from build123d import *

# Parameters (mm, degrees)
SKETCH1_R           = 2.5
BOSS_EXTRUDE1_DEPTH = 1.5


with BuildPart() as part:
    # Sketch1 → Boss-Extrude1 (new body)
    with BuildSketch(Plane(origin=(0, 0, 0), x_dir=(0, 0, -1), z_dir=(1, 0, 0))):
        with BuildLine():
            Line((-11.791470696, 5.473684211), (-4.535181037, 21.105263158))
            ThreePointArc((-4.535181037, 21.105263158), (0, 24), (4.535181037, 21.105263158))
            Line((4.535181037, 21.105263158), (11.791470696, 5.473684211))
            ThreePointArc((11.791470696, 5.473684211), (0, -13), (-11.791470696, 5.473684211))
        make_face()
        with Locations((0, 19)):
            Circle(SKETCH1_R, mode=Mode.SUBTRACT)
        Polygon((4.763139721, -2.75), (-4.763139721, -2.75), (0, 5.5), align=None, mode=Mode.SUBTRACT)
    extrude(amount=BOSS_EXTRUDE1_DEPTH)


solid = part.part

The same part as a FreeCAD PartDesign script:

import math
import FreeCAD as App
import Part
import Sketcher
from FreeCAD import Vector
Q = App.Units.Quantity

doc = App.newDocument("Part")
body = doc.addObject("PartDesign::Body", "Body")

# Sketch on YZ plane
sketch1 = body.newObject("Sketcher::SketchObject", "Sketch")
sketch1.AttachmentSupport = (doc.getObject("YZ_Plane"), [""])
sketch1.MapMode = "FlatFace"
sketch1.addGeometry(Part.LineSegment(Vector(21.1, 4.5, 0), Vector(5.5, 11.8, 0)), False)
sketch1.addGeometry(Part.ArcOfCircle(Part.Circle(Vector(0, 0, 0), Vector(0, 0, 1), 13), math.radians(65), math.radians(295)), False)
sketch1.addGeometry(Part.LineSegment(Vector(5.5, -11.8, 0), Vector(21.1, -4.5, 0)), False)
sketch1.addGeometry(Part.ArcOfCircle(Part.Circle(Vector(19, 0, 0), Vector(0, 0, 1), 5), math.radians(-65), math.radians(65)), False)
sketch1.addGeometry(Part.LineSegment(Vector(-2.8, -4.8, 0), Vector(-2.8, 4.8, 0)), False)
sketch1.addGeometry(Part.LineSegment(Vector(-2.8, 4.8, 0), Vector(5.5, 0, 0)), False)
sketch1.addGeometry(Part.LineSegment(Vector(5.5, 0, 0), Vector(-2.8, -4.8, 0)), False)
sketch1.addGeometry(Part.Circle(Vector(19, 0, 0), Vector(0, 0, 1), 2.5), False)
sketch1.addConstraint(Sketcher.Constraint("Tangent", 0, 2, 1, 1))
sketch1.addConstraint(Sketcher.Constraint("Tangent", 1, 2, 2, 1))
sketch1.addConstraint(Sketcher.Constraint("Tangent", 2, 2, 3, 1))
sketch1.addConstraint(Sketcher.Constraint("Tangent", 3, 2, 0, 1))
sketch1.addConstraint(Sketcher.Constraint("Coincident", 4, 2, 5, 1))
sketch1.addConstraint(Sketcher.Constraint("Coincident", 5, 2, 6, 1))
sketch1.addConstraint(Sketcher.Constraint("Coincident", 6, 2, 4, 1))
sketch1.addConstraint(Sketcher.Constraint("Vertical", 4))
sketch1.addConstraint(Sketcher.Constraint("Coincident", 1, 3, -1, 1))
sketch1.addConstraint(Sketcher.Constraint("Coincident", 7, 3, 3, 3))
sketch1.addConstraint(Sketcher.Constraint("PointOnObject", 3, 3, -1))
sketch1.addConstraint(Sketcher.Constraint("PointOnObject", 5, 2, -1))
sketch1.addConstraint(Sketcher.Constraint("Equal", 5, 6))
sketch1.addConstraint(Sketcher.Constraint("Diameter", 7, Q("5 mm")))
sketch1.addConstraint(Sketcher.Constraint("Radius", 1, Q("13 mm")))
sketch1.addConstraint(Sketcher.Constraint("Radius", 3, Q("5 mm")))
sketch1.addConstraint(Sketcher.Constraint("Angle", 5, Q("-30 deg")))
sketch1.addConstraint(Sketcher.Constraint("DistanceX", -1, 1, 3, 3, Q("19 mm")))
sketch1.addConstraint(Sketcher.Constraint("DistanceX", -1, 1, 5, 2, Q("5.5 mm")))
sketch1.addConstraint(Sketcher.Constraint("DistanceX", 4, 2, -1, 1, Q("2.75 mm")))
pad1 = body.newObject("PartDesign::Pad", "Pad")
pad1.Profile = sketch1
pad1.Length = 1.5

doc.recompute()
